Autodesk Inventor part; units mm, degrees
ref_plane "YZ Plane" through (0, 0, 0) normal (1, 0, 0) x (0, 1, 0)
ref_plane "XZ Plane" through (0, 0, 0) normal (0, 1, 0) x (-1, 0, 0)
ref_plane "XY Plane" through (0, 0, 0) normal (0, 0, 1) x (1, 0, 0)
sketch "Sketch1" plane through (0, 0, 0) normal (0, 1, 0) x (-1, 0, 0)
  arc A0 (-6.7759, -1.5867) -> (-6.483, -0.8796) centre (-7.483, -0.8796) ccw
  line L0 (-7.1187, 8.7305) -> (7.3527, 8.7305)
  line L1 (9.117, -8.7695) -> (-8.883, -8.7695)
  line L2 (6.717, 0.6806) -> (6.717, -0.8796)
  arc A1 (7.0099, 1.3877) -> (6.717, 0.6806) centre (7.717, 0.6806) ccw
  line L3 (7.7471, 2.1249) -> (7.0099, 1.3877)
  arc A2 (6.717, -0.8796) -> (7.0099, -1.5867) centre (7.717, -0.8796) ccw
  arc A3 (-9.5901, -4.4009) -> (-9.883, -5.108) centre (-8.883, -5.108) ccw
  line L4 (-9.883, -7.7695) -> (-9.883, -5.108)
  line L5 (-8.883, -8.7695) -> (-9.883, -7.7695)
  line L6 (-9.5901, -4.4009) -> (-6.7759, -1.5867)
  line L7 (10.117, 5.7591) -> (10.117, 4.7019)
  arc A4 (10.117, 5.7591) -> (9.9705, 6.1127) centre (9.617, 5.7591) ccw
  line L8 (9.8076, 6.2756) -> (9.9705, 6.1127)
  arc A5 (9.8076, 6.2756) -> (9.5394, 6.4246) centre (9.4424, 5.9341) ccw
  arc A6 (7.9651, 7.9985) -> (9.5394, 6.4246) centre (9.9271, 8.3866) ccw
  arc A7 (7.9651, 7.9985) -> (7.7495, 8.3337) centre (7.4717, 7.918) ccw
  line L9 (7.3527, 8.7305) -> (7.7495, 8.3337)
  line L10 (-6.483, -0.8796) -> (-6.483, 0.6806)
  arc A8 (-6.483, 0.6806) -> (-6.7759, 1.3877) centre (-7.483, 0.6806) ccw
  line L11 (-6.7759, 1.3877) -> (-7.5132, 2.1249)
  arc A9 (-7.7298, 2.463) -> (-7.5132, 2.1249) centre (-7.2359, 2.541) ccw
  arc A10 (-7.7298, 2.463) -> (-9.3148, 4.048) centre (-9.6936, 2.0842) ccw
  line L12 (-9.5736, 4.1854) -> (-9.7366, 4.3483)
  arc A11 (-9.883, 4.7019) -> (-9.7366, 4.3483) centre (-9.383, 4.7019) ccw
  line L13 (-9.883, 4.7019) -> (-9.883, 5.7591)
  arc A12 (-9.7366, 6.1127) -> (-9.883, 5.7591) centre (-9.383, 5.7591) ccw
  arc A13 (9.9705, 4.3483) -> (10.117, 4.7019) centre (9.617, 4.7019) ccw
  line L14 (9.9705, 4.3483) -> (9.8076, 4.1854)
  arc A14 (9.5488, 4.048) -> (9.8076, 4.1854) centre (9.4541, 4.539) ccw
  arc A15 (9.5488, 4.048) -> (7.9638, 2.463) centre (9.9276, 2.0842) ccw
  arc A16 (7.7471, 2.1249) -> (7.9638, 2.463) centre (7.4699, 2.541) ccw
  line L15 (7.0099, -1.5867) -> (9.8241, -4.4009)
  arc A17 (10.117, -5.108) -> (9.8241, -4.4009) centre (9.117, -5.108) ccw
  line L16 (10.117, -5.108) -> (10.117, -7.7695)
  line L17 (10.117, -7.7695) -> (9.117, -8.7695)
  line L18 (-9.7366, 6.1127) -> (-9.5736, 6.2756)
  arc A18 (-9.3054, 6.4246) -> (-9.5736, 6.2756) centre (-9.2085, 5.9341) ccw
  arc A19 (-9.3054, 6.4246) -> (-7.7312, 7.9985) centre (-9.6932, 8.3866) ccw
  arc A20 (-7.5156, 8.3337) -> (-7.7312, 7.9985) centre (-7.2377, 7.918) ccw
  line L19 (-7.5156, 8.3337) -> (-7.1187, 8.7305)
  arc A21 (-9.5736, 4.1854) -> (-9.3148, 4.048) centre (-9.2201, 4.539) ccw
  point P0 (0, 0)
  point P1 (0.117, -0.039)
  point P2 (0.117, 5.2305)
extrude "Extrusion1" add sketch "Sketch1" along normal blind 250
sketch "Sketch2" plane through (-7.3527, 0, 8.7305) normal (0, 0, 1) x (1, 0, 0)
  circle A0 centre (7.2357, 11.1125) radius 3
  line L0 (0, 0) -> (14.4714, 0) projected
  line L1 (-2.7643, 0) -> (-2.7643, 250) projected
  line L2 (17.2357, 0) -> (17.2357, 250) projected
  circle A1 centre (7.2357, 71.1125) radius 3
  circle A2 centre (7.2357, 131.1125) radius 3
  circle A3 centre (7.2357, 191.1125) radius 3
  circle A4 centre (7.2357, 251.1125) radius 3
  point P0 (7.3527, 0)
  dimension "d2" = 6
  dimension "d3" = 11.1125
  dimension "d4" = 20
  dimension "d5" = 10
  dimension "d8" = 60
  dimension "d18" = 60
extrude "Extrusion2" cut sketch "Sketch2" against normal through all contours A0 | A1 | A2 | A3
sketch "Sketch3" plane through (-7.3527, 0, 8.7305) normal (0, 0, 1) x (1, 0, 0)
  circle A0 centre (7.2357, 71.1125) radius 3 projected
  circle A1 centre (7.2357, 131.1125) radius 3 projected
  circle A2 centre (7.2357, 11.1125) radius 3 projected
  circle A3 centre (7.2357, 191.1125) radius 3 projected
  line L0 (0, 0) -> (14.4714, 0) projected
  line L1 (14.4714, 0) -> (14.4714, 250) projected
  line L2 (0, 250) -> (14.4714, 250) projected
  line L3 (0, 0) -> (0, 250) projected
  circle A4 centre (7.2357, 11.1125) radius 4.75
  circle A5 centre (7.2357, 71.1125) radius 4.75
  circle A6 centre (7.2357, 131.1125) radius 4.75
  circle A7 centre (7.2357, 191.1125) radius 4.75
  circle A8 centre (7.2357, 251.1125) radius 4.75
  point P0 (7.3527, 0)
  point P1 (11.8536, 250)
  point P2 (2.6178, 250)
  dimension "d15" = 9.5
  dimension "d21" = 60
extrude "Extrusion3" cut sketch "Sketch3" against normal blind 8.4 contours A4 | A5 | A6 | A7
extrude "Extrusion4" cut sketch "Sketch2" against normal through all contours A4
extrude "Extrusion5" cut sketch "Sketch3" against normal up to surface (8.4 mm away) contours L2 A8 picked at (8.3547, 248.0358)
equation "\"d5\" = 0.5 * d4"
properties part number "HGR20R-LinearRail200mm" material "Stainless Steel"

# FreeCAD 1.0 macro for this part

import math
import FreeCAD as App
import Part
import Sketcher
Q = App.Units.Quantity

doc = App.newDocument("Part")
params = doc.addObject("Spreadsheet::Sheet", "Params")
for row, (alias, value) in enumerate([
    ("sketch1_radius", "1 mm"),
    ("sketch1_radius2", "2 mm"),
    ("sketch1_radius3", "0.5 mm"),
    ("sketch1_width", "18 mm"),
    ("pad1_length", "250 mm"),
    ("sketch2_diameter", "6 mm"),
    ("sketch3_diameter", "9.5 mm"),
    ("sketch3_diameter2", "6 mm"),
    ("pocket2_length", "8.4 mm"),
    ("sketch4_diameter", "6 mm"),
    ("sketch5_radius", "4.75 mm"),
    ("pocket4_length", "8.4 mm"),
], start=1):
    params.set(f"A{row}", alias)
    params.set(f"B{row}", "=" + value)
    params.setAlias(f"B{row}", alias)

body = doc.addObject("PartDesign::Body", "Body")

sketch1 = body.newObject("Sketcher::SketchObject", "Sketch")
sketch1.AttachmentSupport = (doc.getObject("XZ_Plane"), [""])
sketch1.MapMode = "FlatFace"
sketch1.addGeometry([
    Part.ArcOfCircle(Part.Circle(App.Vector(7.483, -0.8796, 0), App.Vector(0, 0, 1), 0.99999), math.radians(180), math.radians(225)),
    Part.LineSegment(App.Vector(6.7759, -1.5867, 0), App.Vector(9.5901, -4.4009, 0)),
    Part.ArcOfCircle(Part.Circle(App.Vector(8.883, -5.108, 0), App.Vector(0, 0, 1), 0.99999), math.radians(0), math.radians(45)),
    Part.LineSegment(App.Vector(9.883, -5.108, 0), App.Vector(9.883, -7.7695, 0)),
    Part.LineSegment(App.Vector(9.883, -7.7695, 0), App.Vector(8.883, -8.7695, 0)),
    Part.LineSegment(App.Vector(8.883, -8.7695, 0), App.Vector(-9.117, -8.7695, 0)),
    Part.LineSegment(App.Vector(-9.117, -8.7695, 0), App.Vector(-10.117, -7.7695, 0)),
    Part.LineSegment(App.Vector(-10.117, -7.7695, 0), App.Vector(-10.117, -5.108, 0)),
    Part.ArcOfCircle(Part.Circle(App.Vector(-9.117, -5.108, 0), App.Vector(0, 0, 1), 1), math.radians(135), math.radians(180)),
    Part.LineSegment(App.Vector(-9.8241, -4.4009, 0), App.Vector(-7.0099, -1.5867, 0)),
    Part.ArcOfCircle(Part.Circle(App.Vector(-7.717, -0.8796, 0), App.Vector(0, 0, 1), 1), math.radians(-45), math.radians(0)),
    Part.LineSegment(App.Vector(-6.717, -0.8796, 0), App.Vector(-6.717, 0.6806, 0)),
    Part.ArcOfCircle(Part.Circle(App.Vector(-7.717, 0.6806, 0), App.Vector(0, 0, 1), 0.99999), math.radians(0), math.radians(45)),
    Part.LineSegment(App.Vector(-7.0099, 1.3877, 0), App.Vector(-7.7471, 2.1249, 0)),
    Part.ArcOfCircle(Part.Circle(App.Vector(-7.4699, 2.541, 0), App.Vector(0, 0, 1), 0.499979), math.radians(-171.025586), math.radians(-123.670998)),
    Part.ArcOfCircle(Part.Circle(App.Vector(-9.9276, 2.0842, 0), App.Vector(0, 0, 1), 2), math.radians(10.917771), math.radians(79.082229)),
    Part.ArcOfCircle(Part.Circle(App.Vector(-9.4541, 4.539, 0), App.Vector(0, 0, 1), 0.500049), math.radians(-134.991897), math.radians(-100.916686)),
    Part.LineSegment(App.Vector(-9.8076, 4.1854, 0), App.Vector(-9.9705, 4.3483, 0)),
    Part.ArcOfCircle(Part.Circle(App.Vector(-9.617, 4.7019, 0), App.Vector(0, 0, 1), 0.499995), math.radians(180), math.radians(225.008103)),
    Part.LineSegment(App.Vector(-10.117, 4.7019, 0), App.Vector(-10.117, 5.7591, 0)),
    Part.ArcOfCircle(Part.Circle(App.Vector(-9.617, 5.7591, 0), App.Vector(0, 0, 1), 0.5), math.radians(134.991897), math.radians(180)),
    Part.LineSegment(App.Vector(-9.9705, 6.1127, 0), App.Vector(-9.8076, 6.2756, 0)),
    Part.ArcOfCircle(Part.Circle(App.Vector(-9.4424, 5.9341, 0), App.Vector(0, 0, 1), 0.499993), math.radians(101.186329), math.radians(136.92076)),
    Part.ArcOfCircle(Part.Circle(App.Vector(-9.9271, 8.3866, 0), App.Vector(0, 0, 1), 2.000016), math.radians(-78.822102), math.radians(-11.18914)),
    Part.ArcOfCircle(Part.Circle(App.Vector(-7.4717, 7.918, 0), App.Vector(0, 0, 1), 0.499924), math.radians(123.753634), math.radians(170.733631)),
    Part.LineSegment(App.Vector(-7.7495, 8.3337, 0), App.Vector(-7.3527, 8.7305, 0)),
    Part.LineSegment(App.Vector(-7.3527, 8.7305, 0), App.Vector(7.1187, 8.7305, 0)),
    Part.LineSegment(App.Vector(7.1187, 8.7305, 0), App.Vector(7.5156, 8.3337, 0)),
    Part.ArcOfCircle(Part.Circle(App.Vector(7.2377, 7.918, 0), App.Vector(0, 0, 1), 0.500035), math.radians(9.264524), math.radians(56.236839)),
    Part.ArcOfCircle(Part.Circle(App.Vector(9.6932, 8.3866, 0), App.Vector(0, 0, 1), 1.999958), math.radians(-168.81086), math.radians(-101.180708)),
    Part.ArcOfCircle(Part.Circle(App.Vector(9.2085, 5.9341, 0), App.Vector(0, 0, 1), 0.49998), math.radians(43.087068), math.radians(78.824913)),
    Part.LineSegment(App.Vector(9.5736, 6.2756, 0), App.Vector(9.7366, 6.1127, 0)),
    Part.ArcOfCircle(Part.Circle(App.Vector(9.383, 5.7591, 0), App.Vector(0, 0, 1), 0.500066), math.radians(0), math.radians(45)),
    Part.LineSegment(App.Vector(9.883, 5.7591, 0), App.Vector(9.883, 4.7019, 0)),
    Part.ArcOfCircle(Part.Circle(App.Vector(9.383, 4.7019, 0), App.Vector(0, 0, 1), 0.5), math.radians(-45), math.radians(0)),
    Part.LineSegment(App.Vector(9.7366, 4.3483, 0), App.Vector(9.5736, 4.1854, 0)),
    Part.ArcOfCircle(Part.Circle(App.Vector(9.2201, 4.539, 0), App.Vector(0, 0, 1), 0.499995), math.radians(-79.083314), math.radians(-45.008103)),
    Part.ArcOfCircle(Part.Circle(App.Vector(9.6936, 2.0842, 0), App.Vector(0, 0, 1), 2), math.radians(100.917771), math.radians(169.082229)),
    Part.ArcOfCircle(Part.Circle(App.Vector(7.2359, 2.541, 0), App.Vector(0, 0, 1), 0.500021), math.radians(-56.319466), math.radians(-8.974414)),
    Part.LineSegment(App.Vector(7.5132, 2.1249, 0), App.Vector(6.7759, 1.3877, 0)),
    Part.ArcOfCircle(Part.Circle(App.Vector(7.483, 0.6806, 0), App.Vector(0, 0, 1), 1), math.radians(135), math.radians(180)),
    Part.LineSegment(App.Vector(6.483, 0.6806, 0), App.Vector(6.483, -0.8796, 0)),
], False)
sketch1.addConstraint([
    Sketcher.Constraint("Tangent", 0, 2, 1, 1),
    Sketcher.Constraint("Tangent", 1, 2, 2, 2),
    Sketcher.Constraint("Tangent", 2, 1, 3, 1),
    Sketcher.Constraint("Coincident", 3, 2, 4, 1),
    Sketcher.Constraint("Coincident", 4, 2, 5, 1),
    Sketcher.Constraint("Coincident", 5, 2, 6, 1),
    Sketcher.Constraint("Coincident", 6, 2, 7, 1),
    Sketcher.Constraint("Tangent", 7, 2, 8, 2),
    Sketcher.Constraint("Tangent", 8, 1, 9, 1),
    Sketcher.Constraint("Tangent", 9, 2, 10, 1),
    Sketcher.Constraint("Tangent", 10, 2, 11, 1),
    Sketcher.Constraint("Tangent", 11, 2, 12, 1),
    Sketcher.Constraint("Tangent", 12, 2, 13, 1),
    Sketcher.Constraint("Coincident", 13, 2, 14, 2),
    Sketcher.Constraint("Coincident", 14, 1, 15, 1),
    Sketcher.Constraint("Tangent", 15, 2, 16, 2),
    Sketcher.Constraint("Tangent", 16, 1, 17, 1),
    Sketcher.Constraint("Tangent", 17, 2, 18, 2),
    Sketcher.Constraint("Tangent", 18, 1, 19, 1),
    Sketcher.Constraint("Tangent", 19, 2, 20, 2),
    Sketcher.Constraint("Tangent", 20, 1, 21, 1),
    Sketcher.Constraint("Coincident", 21, 2, 22, 2),
    Sketcher.Constraint("Tangent", 22, 1, 23, 1),
    Sketcher.Constraint("Coincident", 23, 2, 24, 2),
    Sketcher.Constraint("Coincident", 24, 1, 25, 1),
    Sketcher.Constraint("Coincident", 25, 2, 26, 1),
    Sketcher.Constraint("Coincident", 26, 2, 27, 1),
    Sketcher.Constraint("Coincident", 27, 2, 28, 2),
    Sketcher.Constraint("Coincident", 28, 1, 29, 1),
    Sketcher.Constraint("Tangent", 29, 2, 30, 2),
    Sketcher.Constraint("Coincident", 30, 1, 31, 1),
    Sketcher.Constraint("Tangent", 31, 2, 32, 2),
    Sketcher.Constraint("Tangent", 32, 1, 33, 1),
    Sketcher.Constraint("Tangent", 33, 2, 34, 2),
    Sketcher.Constraint("Tangent", 34, 1, 35, 1),
    Sketcher.Constraint("Tangent", 35, 2, 36, 2),
    Sketcher.Constraint("Tangent", 36, 1, 37, 1),
    Sketcher.Constraint("Coincident", 37, 2, 38, 2),
    Sketcher.Constraint("Coincident", 38, 1, 39, 1),
    Sketcher.Constraint("Tangent", 39, 2, 40, 1),
    Sketcher.Constraint("Tangent", 40, 2, 41, 1),
    Sketcher.Constraint("Tangent", 41, 2, 0, 1),
    Sketcher.Constraint("Vertical", 3),
    Sketcher.Constraint("Horizontal", 5),
    Sketcher.Constraint("Vertical", 7),
    Sketcher.Constraint("Vertical", 11),
    Sketcher.Constraint("Vertical", 19),
    Sketcher.Constraint("Horizontal", 26),
    Sketcher.Constraint("Vertical", 33),
    Sketcher.Constraint("Vertical", 41),
    Sketcher.Constraint("Equal", 0, 2),
    Sketcher.Constraint("Equal", 2, 8),
    Sketcher.Constraint("Equal", 8, 10),
    Sketcher.Constraint("Equal", 10, 12),
    Sketcher.Constraint("Equal", 14, 16),
    Sketcher.Constraint("Equal", 16, 18),
    Sketcher.Constraint("Equal", 18, 20),
    Sketcher.Constraint("Equal", 20, 22),
    Sketcher.Constraint("Equal", 15, 23),
    Sketcher.Constraint("Equal", 22, 24),
    Sketcher.Constraint("Equal", 24, 28),
    Sketcher.Constraint("Equal", 23, 29),
    Sketcher.Constraint("Equal", 28, 30),
    Sketcher.Constraint("Equal", 30, 32),
    Sketcher.Constraint("Equal", 32, 34),
    Sketcher.Constraint("Equal", 34, 36),
    Sketcher.Constraint("Equal", 29, 37),
    Sketcher.Constraint("Equal", 36, 38),
    Sketcher.Constraint("Equal", 12, 40),
    Sketcher.Constraint("Perpendicular", 1, 4),
    Sketcher.Constraint("Perpendicular", 4, 6),
    Sketcher.Constraint("Perpendicular", 6, 9),
    Sketcher.Constraint("Perpendicular", 9, 13),
    Sketcher.Constraint("Parallel", 13, 17),
    Sketcher.Constraint("Perpendicular", 17, 21),
    Sketcher.Constraint("Parallel", 21, 25),
    Sketcher.Constraint("Perpendicular", 25, 27),
    Sketcher.Constraint("Parallel", 27, 31),
    Sketcher.Constraint("Perpendicular", 27, 35),
    Sketcher.Constraint("Parallel", 35, 39),
    Sketcher.Constraint("Horizontal", 2, 3, 8, 3),
    Sketcher.Constraint("Horizontal", 0, 3, 10, 3),
    Sketcher.Constraint("Horizontal", 24, 3, 28, 3),
    Sketcher.Constraint("Horizontal", 23, 3, 29, 3),
    Sketcher.Constraint("Horizontal", 22, 3, 30, 3),
    Sketcher.Constraint("Horizontal", 20, 3, 32, 3),
    Sketcher.Constraint("Horizontal", 18, 3, 34, 3),
    Sketcher.Constraint("Horizontal", 16, 3, 36, 3),
    Sketcher.Constraint("Horizontal", 15, 3, 37, 3),
    Sketcher.Constraint("Horizontal", 14, 3, 38, 3),
    Sketcher.Constraint("Horizontal", 12, 3, 40, 3),
    Sketcher.Constraint("Horizontal", 3, 2, 6, 2),
    Sketcher.Constraint("Horizontal", 1, 2, 8, 1),
    Sketcher.Constraint("Horizontal", 24, 1, 27, 2),
    Sketcher.Constraint("Horizontal", 23, 2, 28, 1),
    Sketcher.Constraint("Horizontal", 21, 2, 30, 1),
    Sketcher.Constraint("Horizontal", 14, 1, 37, 2),
    Sketcher.Constraint("Horizontal", 13, 2, 38, 1),
    Sketcher.Constraint("Vertical", 2, 3, 4, 2),
    Sketcher.Constraint("Vertical", 7, 2, 18, 1),
    Sketcher.Constraint("Vertical", 16, 1, 21, 2),
    Sketcher.Constraint("Radius", 0, Q("1 mm")),
    Sketcher.Constraint("Radius", 15, Q("2 mm")),
    Sketcher.Constraint("Radius", 14, Q("0.5 mm")),
    Sketcher.Constraint("DistanceX", 5, 2, 5, 1, Q("18 mm")),
    Sketcher.Constraint("DistanceX", 14, 3, -1, 1, Q("7.47 mm")),
    Sketcher.Constraint("DistanceX", -1, 1, 36, 3, Q("9.22 mm")),
    Sketcher.Constraint("DistanceX", -1, 1, 1, 2, Q("9.59 mm")),
    Sketcher.Constraint("DistanceX", 9, 2, -1, 1, Q("7.01 mm")),
    Sketcher.Constraint("DistanceX", 26, 1, 26, 2, Q("14.4714 mm")),
    Sketcher.Constraint("DistanceY", 3, 2, 3, 1, Q("2.6615 mm")),
    Sketcher.Constraint("DistanceY", 11, 1, 11, 2, Q("1.5602 mm")),
    Sketcher.Constraint("DistanceY", 19, 1, 19, 2, Q("1.0572 mm")),
    Sketcher.Constraint("DistanceY", 2, 3, -1, 1, Q("5.108 mm")),
    Sketcher.Constraint("DistanceY", -1, 1, 14, 3, Q("2.541 mm")),
    Sketcher.Constraint("DistanceY", -1, 1, 16, 3, Q("4.539 mm")),
    Sketcher.Constraint("DistanceY", -1, 1, 22, 3, Q("5.934 mm")),
    Sketcher.Constraint("DistanceX", 23, 3, -1, 1, Q("9.927 mm")),
    Sketcher.Constraint("DistanceY", -1, 1, 24, 3, Q("7.918 mm")),
    Sketcher.Constraint("DistanceY", -1, 1, 14, 1, Q("2.463 mm")),
    Sketcher.Constraint("DistanceX", 23, 2, -1, 1, Q("7.965 mm")),
    Sketcher.Constraint("Distance", 25, Q("0.5612 mm")),
])
sketch1.setExpression("Constraints[101]", "Params.sketch1_radius")
sketch1.setExpression("Constraints[102]", "Params.sketch1_radius2")
sketch1.setExpression("Constraints[103]", "Params.sketch1_radius3")
sketch1.setExpression("Constraints[104]", "Params.sketch1_width")
pad1 = body.newObject("PartDesign::Pad", "Pad")
pad1.Profile = sketch1
pad1.setExpression("Length", "Params.pad1_length")
pad1.Reversed = True

sketch2 = body.newObject("Sketcher::SketchObject", "Sketch001")
sketch2.AttachmentSupport = (doc.getObject("XY_Plane"), [""])
sketch2.MapMode = "FlatFace"
sketch2.AttachmentOffset = App.Placement(App.Vector(0, 0, 8.7305), App.Rotation())
sketch2.addGeometry([
    Part.Circle(App.Vector(-0.117, 11.1125, 0), App.Vector(0, 0, 1), 3),
    Part.Circle(App.Vector(-0.117, 71.1125, 0), App.Vector(0, 0, 1), 3),
    Part.Circle(App.Vector(-0.117, 131.1125, 0), App.Vector(0, 0, 1), 3),
    Part.Circle(App.Vector(-0.117, 191.1125, 0), App.Vector(0, 0, 1), 3),
], False)
sketch2.addConstraint([
    Sketcher.Constraint("Equal", 0, 1),
    Sketcher.Constraint("Equal", 1, 2),
    Sketcher.Constraint("Equal", 2, 3),
    Sketcher.Constraint("Vertical", 0, 3, 1, 3),
    Sketcher.Constraint("Vertical", 1, 3, 2, 3),
    Sketcher.Constraint("Vertical", 2, 3, 3, 3),
    Sketcher.Constraint("Diameter", 0, Q("6 mm")),
    Sketcher.Constraint("DistanceY", 0, 3, 1, 3, Q("60 mm")),
    Sketcher.Constraint("DistanceY", 1, 3, 2, 3, Q("60 mm")),
    Sketcher.Constraint("DistanceY", 2, 3, 3, 3, Q("60 mm")),
    Sketcher.Constraint("DistanceY", -1, 1, 0, 3, Q("11.1125 mm")),
    Sketcher.Constraint("DistanceX", 0, 3, -1, 1, Q("0.117 mm")),
])
sketch2.setExpression("Constraints[6]", "Params.sketch2_diameter")
pocket1 = body.newObject("PartDesign::Pocket", "Pocket")
pocket1.Profile = sketch2
pocket1.Type = "ThroughAll"

sketch3 = body.newObject("Sketcher::SketchObject", "Sketch002")
sketch3.AttachmentSupport = (doc.getObject("XY_Plane"), [""])
sketch3.MapMode = "FlatFace"
sketch3.AttachmentOffset = App.Placement(App.Vector(0, 0, 8.7305), App.Rotation())
sketch3.addGeometry([
    Part.Circle(App.Vector(-0.117, 11.1125, 0), App.Vector(0, 0, 1), 4.75),
    Part.Circle(App.Vector(-0.117, 11.1125, 0), App.Vector(0, 0, 1), 3),
    Part.Circle(App.Vector(-0.117, 71.1125, 0), App.Vector(0, 0, 1), 4.75),
    Part.Circle(App.Vector(-0.117, 71.1125, 0), App.Vector(0, 0, 1), 3),
    Part.Circle(App.Vector(-0.117, 131.1125, 0), App.Vector(0, 0, 1), 4.75),
    Part.Circle(App.Vector(-0.117, 131.1125, 0), App.Vector(0, 0, 1), 3),
    Part.Circle(App.Vector(-0.117, 191.1125, 0), App.Vector(0, 0, 1), 4.75),
    Part.Circle(App.Vector(-0.117, 191.1125, 0), App.Vector(0, 0, 1), 3),
], False)
sketch3.addConstraint([
    Sketcher.Constraint("Coincident", 1, 3, 0, 3),
    Sketcher.Constraint("Coincident", 3, 3, 2, 3),
    Sketcher.Constraint("Coincident", 5, 3, 4, 3),
    Sketcher.Constraint("Coincident", 7, 3, 6, 3),
    Sketcher.Constraint("Equal", 0, 2),
    Sketcher.Constraint("Equal", 1, 3),
    Sketcher.Constraint("Equal", 2, 4),
    Sketcher.Constraint("Equal", 3, 5),
    Sketcher.Constraint("Equal", 4, 6),
    Sketcher.Constraint("Equal", 5, 7),
    Sketcher.Constraint("Vertical", 1, 3, 2, 3),
    Sketcher.Constraint("Vertical", 3, 3, 4, 3),
    Sketcher.Constraint("Vertical", 5, 3, 6, 3),
    Sketcher.Constraint("Diameter", 0, Q("9.5 mm")),
    Sketcher.Constraint("Diameter", 1, Q("6 mm")),
    Sketcher.Constraint("DistanceY", 0, 3, 2, 3, Q("60 mm")),
    Sketcher.Constraint("DistanceY", 2, 3, 4, 3, Q("60 mm")),
    Sketcher.Constraint("DistanceY", 4, 3, 6, 3, Q("60 mm")),
    Sketcher.Constraint("DistanceX", 0, 3, -1, 1, Q("0.117 mm")),
    Sketcher.Constraint("DistanceY", -1, 1, 0, 3, Q("11.1125 mm")),
])
sketch3.setExpression("Constraints[13]", "Params.sketch3_diameter")
sketch3.setExpression("Constraints[14]", "Params.sketch3_diameter2")
pocket2 = body.newObject("PartDesign::Pocket", "Pocket001")
pocket2.Profile = sketch3
pocket2.setExpression("Length", "Params.pocket2_length")

sketch4 = body.newObject("Sketcher::SketchObject", "Sketch003")
sketch4.AttachmentSupport = (doc.getObject("XY_Plane"), [""])
sketch4.MapMode = "FlatFace"
sketch4.AttachmentOffset = App.Placement(App.Vector(0, 0, 8.7305), App.Rotation())
sketch4.addGeometry(Part.Circle(App.Vector(-0.117, 251.1125, 0), App.Vector(0, 0, 1), 3), False)
sketch4.addConstraint([
    Sketcher.Constraint("Diameter", 0, Q("6 mm")),
    Sketcher.Constraint("DistanceX", 0, 3, -1, 1, Q("0.117 mm")),
    Sketcher.Constraint("DistanceY", -1, 1, 0, 3, Q("251.1125 mm")),
])
sketch4.setExpression("Constraints[0]", "Params.sketch4_diameter")
pocket3 = body.newObject("PartDesign::Pocket", "Pocket002")
pocket3.Profile = sketch4
pocket3.Type = "ThroughAll"

sketch5 = body.newObject("Sketcher::SketchObject", "Sketch004")
sketch5.AttachmentSupport = (doc.getObject("XY_Plane"), [""])
sketch5.MapMode = "FlatFace"
sketch5.AttachmentOffset = App.Placement(App.Vector(0, 0, 8.7305), App.Rotation())
sketch5.addGeometry([
    Part.LineSegment(App.Vector(4.500883, 250, 0), App.Vector(-4.734883, 250, 0)),
    Part.ArcOfCircle(Part.Circle(App.Vector(-0.117, 251.1125, 0), App.Vector(0, 0, 1), 4.75), math.radians(-166.454909), math.radians(-13.545091)),
], False)
sketch5.addConstraint([
    Sketcher.Constraint("Coincident", 0, 1, 1, 2),
    Sketcher.Constraint("Coincident", 1, 1, 0, 2),
    Sketcher.Constraint("Horizontal", 0),
    Sketcher.Constraint("Radius", 1, Q("4.75 mm")),
    Sketcher.Constraint("DistanceY", -1, 1, 0, 1, Q("250 mm")),
    Sketcher.Constraint("DistanceX", 0, 2, 0, 1, Q("9.2358 mm")),
    Sketcher.Constraint("DistanceX", 1, 3, -1, 1, Q("0.117 mm")),
])
sketch5.setExpression("Constraints[3]", "Params.sketch5_radius")
pocket4 = body.newObject("PartDesign::Pocket", "Pocket003")
pocket4.Profile = sketch5
pocket4.setExpression("Length", "Params.pocket4_length")

doc.recompute()
